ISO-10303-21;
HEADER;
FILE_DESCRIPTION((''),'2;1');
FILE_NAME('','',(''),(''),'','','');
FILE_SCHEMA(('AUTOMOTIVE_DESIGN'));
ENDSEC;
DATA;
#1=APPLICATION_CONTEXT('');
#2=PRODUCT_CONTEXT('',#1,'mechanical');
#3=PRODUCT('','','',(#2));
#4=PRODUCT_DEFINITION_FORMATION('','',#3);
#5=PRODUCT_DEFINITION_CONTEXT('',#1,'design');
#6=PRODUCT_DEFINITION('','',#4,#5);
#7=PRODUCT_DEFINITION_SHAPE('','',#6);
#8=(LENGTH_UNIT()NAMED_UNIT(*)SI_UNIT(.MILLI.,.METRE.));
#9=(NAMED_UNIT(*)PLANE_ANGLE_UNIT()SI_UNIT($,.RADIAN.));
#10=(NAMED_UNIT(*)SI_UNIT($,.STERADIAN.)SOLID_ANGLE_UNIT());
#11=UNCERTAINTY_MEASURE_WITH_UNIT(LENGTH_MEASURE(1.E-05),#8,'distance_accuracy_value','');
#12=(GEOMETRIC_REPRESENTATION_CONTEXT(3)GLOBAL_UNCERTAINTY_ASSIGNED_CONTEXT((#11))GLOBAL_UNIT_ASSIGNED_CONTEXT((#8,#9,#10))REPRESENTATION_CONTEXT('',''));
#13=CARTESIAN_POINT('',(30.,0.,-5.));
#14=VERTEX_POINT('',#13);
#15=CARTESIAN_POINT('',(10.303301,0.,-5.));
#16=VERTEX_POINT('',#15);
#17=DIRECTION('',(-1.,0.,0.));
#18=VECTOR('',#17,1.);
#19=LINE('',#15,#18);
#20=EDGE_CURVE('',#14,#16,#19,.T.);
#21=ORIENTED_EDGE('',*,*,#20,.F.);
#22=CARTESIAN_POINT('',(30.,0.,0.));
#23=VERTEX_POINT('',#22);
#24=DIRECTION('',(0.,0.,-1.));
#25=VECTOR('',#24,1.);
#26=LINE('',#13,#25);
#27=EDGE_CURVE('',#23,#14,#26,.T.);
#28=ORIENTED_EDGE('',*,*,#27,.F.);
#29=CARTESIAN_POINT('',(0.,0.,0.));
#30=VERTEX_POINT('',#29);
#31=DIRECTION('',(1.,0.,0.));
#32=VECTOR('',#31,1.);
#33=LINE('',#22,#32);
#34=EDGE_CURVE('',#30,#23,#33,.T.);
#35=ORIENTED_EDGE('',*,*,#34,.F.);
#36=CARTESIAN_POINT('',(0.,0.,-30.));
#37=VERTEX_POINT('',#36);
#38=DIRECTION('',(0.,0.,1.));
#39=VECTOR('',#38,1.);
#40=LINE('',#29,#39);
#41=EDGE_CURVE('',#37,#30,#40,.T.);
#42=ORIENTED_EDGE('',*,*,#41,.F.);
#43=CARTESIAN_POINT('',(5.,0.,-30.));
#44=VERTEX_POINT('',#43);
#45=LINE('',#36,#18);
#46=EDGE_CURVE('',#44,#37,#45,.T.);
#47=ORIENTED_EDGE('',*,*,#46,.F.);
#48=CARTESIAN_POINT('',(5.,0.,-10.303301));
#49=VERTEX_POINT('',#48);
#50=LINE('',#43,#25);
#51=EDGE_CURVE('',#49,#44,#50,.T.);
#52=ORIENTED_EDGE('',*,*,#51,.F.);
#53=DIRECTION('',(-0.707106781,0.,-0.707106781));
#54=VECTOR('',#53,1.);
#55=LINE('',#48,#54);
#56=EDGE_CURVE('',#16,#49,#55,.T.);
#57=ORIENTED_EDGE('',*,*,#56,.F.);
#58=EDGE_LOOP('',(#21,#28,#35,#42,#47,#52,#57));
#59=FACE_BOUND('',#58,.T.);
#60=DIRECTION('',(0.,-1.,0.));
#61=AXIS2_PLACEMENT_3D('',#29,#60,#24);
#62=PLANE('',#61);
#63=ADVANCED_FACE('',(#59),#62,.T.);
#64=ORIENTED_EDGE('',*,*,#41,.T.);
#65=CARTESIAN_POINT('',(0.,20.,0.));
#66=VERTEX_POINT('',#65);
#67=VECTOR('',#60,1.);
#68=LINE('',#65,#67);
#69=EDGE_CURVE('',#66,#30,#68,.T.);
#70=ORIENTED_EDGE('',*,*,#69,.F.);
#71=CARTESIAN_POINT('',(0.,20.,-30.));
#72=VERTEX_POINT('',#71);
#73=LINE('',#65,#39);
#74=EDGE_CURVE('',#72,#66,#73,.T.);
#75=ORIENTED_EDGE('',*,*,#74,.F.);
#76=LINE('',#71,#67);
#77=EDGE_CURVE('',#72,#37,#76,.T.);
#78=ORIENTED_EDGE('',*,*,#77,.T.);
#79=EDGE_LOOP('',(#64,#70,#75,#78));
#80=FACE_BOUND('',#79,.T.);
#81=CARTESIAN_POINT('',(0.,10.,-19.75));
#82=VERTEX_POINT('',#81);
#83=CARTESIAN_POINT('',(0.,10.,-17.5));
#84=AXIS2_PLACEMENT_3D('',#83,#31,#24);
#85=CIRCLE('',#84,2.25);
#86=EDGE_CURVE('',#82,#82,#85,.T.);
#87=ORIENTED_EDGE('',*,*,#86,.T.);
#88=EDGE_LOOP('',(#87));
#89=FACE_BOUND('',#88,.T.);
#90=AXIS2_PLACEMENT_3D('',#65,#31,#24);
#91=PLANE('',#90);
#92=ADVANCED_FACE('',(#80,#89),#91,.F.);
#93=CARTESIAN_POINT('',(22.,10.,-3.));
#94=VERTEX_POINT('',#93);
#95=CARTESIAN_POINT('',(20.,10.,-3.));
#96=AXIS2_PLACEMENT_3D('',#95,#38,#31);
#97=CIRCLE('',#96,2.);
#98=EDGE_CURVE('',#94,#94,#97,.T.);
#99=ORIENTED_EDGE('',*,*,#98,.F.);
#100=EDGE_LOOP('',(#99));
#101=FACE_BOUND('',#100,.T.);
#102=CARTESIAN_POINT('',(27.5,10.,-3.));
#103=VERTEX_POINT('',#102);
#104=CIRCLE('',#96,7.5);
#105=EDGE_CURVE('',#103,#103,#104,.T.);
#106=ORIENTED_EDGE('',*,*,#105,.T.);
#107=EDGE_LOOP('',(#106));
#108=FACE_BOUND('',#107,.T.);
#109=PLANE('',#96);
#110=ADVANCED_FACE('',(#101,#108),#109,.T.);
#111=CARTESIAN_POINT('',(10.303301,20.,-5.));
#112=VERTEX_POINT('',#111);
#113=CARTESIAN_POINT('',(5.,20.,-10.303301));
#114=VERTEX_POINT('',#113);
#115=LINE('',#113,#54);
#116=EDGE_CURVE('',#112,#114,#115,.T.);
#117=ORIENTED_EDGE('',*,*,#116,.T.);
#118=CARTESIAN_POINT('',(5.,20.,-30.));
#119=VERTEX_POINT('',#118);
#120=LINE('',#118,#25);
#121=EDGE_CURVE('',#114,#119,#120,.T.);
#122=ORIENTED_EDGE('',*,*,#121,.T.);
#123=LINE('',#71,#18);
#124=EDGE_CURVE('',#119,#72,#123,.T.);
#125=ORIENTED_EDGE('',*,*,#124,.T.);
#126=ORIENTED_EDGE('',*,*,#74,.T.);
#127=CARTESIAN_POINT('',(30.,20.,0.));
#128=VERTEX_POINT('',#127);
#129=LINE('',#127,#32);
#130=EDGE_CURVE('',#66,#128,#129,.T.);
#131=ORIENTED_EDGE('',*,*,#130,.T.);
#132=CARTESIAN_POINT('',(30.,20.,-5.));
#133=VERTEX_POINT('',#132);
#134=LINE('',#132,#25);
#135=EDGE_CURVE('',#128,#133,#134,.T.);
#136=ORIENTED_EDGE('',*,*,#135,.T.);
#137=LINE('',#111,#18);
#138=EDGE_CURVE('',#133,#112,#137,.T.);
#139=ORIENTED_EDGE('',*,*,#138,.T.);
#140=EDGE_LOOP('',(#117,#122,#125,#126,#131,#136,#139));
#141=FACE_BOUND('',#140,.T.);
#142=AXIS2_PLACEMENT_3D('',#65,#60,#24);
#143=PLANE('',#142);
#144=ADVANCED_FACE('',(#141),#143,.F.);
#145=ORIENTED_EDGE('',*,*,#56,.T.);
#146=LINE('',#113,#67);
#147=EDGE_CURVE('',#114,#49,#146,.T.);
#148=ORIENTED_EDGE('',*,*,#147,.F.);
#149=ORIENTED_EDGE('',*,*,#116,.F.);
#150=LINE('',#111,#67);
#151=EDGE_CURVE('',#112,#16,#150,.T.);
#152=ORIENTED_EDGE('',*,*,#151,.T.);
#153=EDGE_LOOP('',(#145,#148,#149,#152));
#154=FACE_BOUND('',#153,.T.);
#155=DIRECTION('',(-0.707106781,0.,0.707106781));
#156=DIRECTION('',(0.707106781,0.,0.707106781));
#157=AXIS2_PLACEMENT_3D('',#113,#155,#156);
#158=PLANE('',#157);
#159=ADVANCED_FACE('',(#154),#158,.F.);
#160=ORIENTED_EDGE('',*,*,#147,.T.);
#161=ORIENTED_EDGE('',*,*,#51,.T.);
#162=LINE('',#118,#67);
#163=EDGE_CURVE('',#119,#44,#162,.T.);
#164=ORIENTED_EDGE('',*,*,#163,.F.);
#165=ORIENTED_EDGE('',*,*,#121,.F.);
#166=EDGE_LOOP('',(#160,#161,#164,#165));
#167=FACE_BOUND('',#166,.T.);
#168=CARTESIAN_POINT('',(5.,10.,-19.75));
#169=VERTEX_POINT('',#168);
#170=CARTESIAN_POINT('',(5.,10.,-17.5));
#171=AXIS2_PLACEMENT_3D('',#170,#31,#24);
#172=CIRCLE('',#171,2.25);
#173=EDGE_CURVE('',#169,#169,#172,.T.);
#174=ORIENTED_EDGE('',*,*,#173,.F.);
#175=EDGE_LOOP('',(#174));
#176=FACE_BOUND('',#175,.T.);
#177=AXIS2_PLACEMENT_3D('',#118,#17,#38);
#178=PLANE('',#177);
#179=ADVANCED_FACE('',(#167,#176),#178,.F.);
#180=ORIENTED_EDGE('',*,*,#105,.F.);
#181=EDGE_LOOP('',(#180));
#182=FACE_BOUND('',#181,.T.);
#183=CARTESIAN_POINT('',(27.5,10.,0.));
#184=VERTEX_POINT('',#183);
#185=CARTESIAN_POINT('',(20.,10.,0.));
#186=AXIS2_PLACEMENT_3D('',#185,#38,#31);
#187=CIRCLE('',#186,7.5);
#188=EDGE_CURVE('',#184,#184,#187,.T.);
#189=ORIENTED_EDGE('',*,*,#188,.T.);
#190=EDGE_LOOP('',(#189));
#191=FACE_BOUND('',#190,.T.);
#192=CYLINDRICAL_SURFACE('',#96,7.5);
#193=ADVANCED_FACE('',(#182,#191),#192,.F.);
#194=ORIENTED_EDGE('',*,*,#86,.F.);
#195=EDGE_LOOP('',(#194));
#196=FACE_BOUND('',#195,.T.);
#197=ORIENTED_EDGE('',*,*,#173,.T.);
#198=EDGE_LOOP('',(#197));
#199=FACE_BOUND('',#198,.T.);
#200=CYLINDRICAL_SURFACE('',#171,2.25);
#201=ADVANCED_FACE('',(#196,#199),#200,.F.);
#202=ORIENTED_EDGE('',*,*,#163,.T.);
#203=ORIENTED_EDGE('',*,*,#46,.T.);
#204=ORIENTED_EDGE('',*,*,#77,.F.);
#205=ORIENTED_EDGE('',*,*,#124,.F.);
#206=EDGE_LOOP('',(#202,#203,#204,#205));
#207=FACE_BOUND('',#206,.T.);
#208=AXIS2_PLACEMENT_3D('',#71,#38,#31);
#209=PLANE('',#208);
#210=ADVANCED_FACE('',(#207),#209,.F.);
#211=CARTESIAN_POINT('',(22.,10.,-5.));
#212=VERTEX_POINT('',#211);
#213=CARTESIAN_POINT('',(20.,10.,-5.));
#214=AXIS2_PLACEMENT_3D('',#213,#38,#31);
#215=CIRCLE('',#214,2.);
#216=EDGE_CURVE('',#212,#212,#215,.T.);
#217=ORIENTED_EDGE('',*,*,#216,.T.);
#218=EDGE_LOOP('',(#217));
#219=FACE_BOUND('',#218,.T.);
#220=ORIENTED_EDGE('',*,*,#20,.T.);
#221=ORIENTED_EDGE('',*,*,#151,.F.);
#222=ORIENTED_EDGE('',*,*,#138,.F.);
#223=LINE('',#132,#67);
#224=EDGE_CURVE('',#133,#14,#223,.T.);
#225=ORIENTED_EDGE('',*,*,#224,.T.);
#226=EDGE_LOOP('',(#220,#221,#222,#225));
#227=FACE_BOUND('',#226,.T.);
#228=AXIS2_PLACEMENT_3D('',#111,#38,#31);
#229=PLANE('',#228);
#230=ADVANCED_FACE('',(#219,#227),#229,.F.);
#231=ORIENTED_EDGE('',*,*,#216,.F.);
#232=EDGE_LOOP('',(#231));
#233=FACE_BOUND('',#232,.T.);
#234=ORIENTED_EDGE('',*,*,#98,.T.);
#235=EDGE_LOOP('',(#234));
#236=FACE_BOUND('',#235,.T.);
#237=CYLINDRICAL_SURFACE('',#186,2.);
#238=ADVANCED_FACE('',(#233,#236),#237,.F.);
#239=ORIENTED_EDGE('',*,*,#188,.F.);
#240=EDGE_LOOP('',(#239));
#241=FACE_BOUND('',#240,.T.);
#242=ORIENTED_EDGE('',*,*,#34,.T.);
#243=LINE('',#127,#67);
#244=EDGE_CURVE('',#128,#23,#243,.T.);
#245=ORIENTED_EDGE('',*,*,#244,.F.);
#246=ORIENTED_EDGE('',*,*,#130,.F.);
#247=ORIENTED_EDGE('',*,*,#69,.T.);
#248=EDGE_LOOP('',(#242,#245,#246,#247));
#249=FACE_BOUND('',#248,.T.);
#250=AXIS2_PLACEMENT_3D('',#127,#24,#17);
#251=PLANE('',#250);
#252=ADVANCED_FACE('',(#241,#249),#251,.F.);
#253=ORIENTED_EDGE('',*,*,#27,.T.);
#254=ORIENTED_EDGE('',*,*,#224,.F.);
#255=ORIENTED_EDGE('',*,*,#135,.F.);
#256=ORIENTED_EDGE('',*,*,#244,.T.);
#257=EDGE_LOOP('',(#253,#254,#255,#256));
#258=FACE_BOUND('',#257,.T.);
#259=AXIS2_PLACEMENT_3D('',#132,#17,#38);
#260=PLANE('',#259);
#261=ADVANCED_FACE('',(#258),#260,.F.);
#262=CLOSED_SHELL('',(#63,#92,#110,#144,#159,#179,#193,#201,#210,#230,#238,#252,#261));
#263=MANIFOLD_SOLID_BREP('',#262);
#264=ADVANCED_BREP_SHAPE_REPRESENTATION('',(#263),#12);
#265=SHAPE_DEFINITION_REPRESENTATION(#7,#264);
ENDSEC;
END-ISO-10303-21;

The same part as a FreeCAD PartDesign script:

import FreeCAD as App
import Part
import Sketcher
from FreeCAD import Vector

doc = App.newDocument("Part")
body = doc.addObject("PartDesign::Body", "Body")

sketch1 = body.newObject("Sketcher::SketchObject", "Sketch")
sketch1.AttachmentSupport = (doc.getObject("XZ_Plane"), [""])
sketch1.MapMode = "FlatFace"
sketch1.addGeometry(Part.LineSegment(Vector(5, -10.303301, 0), Vector(5, -30, 0)), False)
sketch1.addGeometry(Part.LineSegment(Vector(5, -30, 0), Vector(0, -30, 0)), False)
sketch1.addGeometry(Part.LineSegment(Vector(0, -30, 0), Vector(0, 0, 0)), False)
sketch1.addGeometry(Part.LineSegment(Vector(0, 0, 0), Vector(30, 0, 0)), False)
sketch1.addGeometry(Part.LineSegment(Vector(30, 0, 0), Vector(30, -5, 0)), False)
sketch1.addGeometry(Part.LineSegment(Vector(30, -5, 0), Vector(10.303301, -5, 0)), False)
sketch1.addGeometry(Part.LineSegment(Vector(10.303301, -5, 0), Vector(5, -10.303301, 0)), False)
sketch1.addConstraint(Sketcher.Constraint("Coincident", 0, 2, 1, 1))
sketch1.addConstraint(Sketcher.Constraint("Coincident", 1, 2, 2, 1))
sketch1.addConstraint(Sketcher.Constraint("Coincident", 2, 2, 3, 1))
sketch1.addConstraint(Sketcher.Constraint("Coincident", 3, 2, 4, 1))
sketch1.addConstraint(Sketcher.Constraint("Coincident", 4, 2, 5, 1))
sketch1.addConstraint(Sketcher.Constraint("Coincident", 5, 2, 6, 1))
sketch1.addConstraint(Sketcher.Constraint("Coincident", 6, 2, 0, 1))
sketch1.addConstraint(Sketcher.Constraint("Vertical", 0))
sketch1.addConstraint(Sketcher.Constraint("Horizontal", 1))
sketch1.addConstraint(Sketcher.Constraint("Vertical", 2))
sketch1.addConstraint(Sketcher.Constraint("Horizontal", 3))
sketch1.addConstraint(Sketcher.Constraint("Vertical", 4))
sketch1.addConstraint(Sketcher.Constraint("Horizontal", 5))
sketch1.addConstraint(Sketcher.Constraint("Coincident", 2, 2, -1, 1))
sketch1.addConstraint(Sketcher.Constraint("Equal", 5, 0))
sketch1.addConstraint(Sketcher.Constraint("Equal", 3, 2))
sketch1.addConstraint(Sketcher.Constraint("Equal", 1, 4))
sketch1.addConstraint(Sketcher.Constraint("DistanceX", 1, 2, 1, 1, 5.0))
sketch1.addConstraint(Sketcher.Constraint("DistanceX", 3, 1, 3, 2, 30.0))
sketch1.addConstraint(Sketcher.Constraint("Distance", 6, 7.5))
pad1 = body.newObject("PartDesign::Pad", "Pad")
pad1.Profile = sketch1
pad1.Length = 20
pad1.Reversed = True

sketch2 = body.newObject("Sketcher::SketchObject", "Sketch001")
sketch2.AttachmentSupport = (doc.getObject("YZ_Plane"), [""])
sketch2.MapMode = "FlatFace"
sketch2.AttachmentOffset = App.Placement(Vector(0, 0, 5), App.Rotation())
sketch2.addGeometry(Part.Circle(Vector(10, -17.5, 0), Vector(0, 0, 1), 2.25), False)
sketch2.addConstraint(Sketcher.Constraint("Diameter", 0, 4.5))
sketch2.addConstraint(Sketcher.Constraint("DistanceX", -1, 1, 0, 3, 10.0))
sketch2.addConstraint(Sketcher.Constraint("DistanceY", 0, 3, -1, 1, 17.5))
doc.recompute()
hole = body.newObject("PartDesign::Hole", "Hole")
hole.Profile = sketch2
hole.ThreadType = "None"
hole.Diameter = 4.5
hole.DepthType = "Dimension"
hole.Depth = 15
hole.DrillPoint = "Angled"
hole.DrillPointAngle = 118

sketch3 = body.newObject("Sketcher::SketchObject", "Sketch002")
sketch3.AttachmentSupport = (doc.getObject("XY_Plane"), [""])
sketch3.MapMode = "FlatFace"
sketch3.addGeometry(Part.Circle(Vector(20, 10, 0), Vector(0, 0, 1), 7.5), False)
sketch3.addConstraint(Sketcher.Constraint("Diameter", 0, 15.0))
sketch3.addConstraint(Sketcher.Constraint("DistanceX", -1, 1, 0, 3, 20.0))
sketch3.addConstraint(Sketcher.Constraint("DistanceY", -1, 1, 0, 3, 10.0))
pocket1 = body.newObject("PartDesign::Pocket", "Pocket")
pocket1.Profile = sketch3
pocket1.Length = 3

sketch4 = body.newObject("Sketcher::SketchObject", "Sketch003")
sketch4.AttachmentSupport = (doc.getObject("XY_Plane"), [""])
sketch4.MapMode = "FlatFace"
sketch4.addGeometry(Part.Circle(Vector(20, 10, 0), Vector(0, 0, 1), 2), False)
sketch4.addConstraint(Sketcher.Constraint("Diameter", 0, 4.0))
sketch4.addConstraint(Sketcher.Constraint("DistanceX", -1, 1, 0, 3, 20.0))
sketch4.addConstraint(Sketcher.Constraint("DistanceY", -1, 1, 0, 3, 10.0))
doc.recompute()
hole2 = body.newObject("PartDesign::Hole", "Hole001")
hole2.Profile = sketch4
hole2.ThreadType = "None"
hole2.Diameter = 4
hole2.DepthType = "Dimension"
hole2.Depth = 9
hole2.DrillPoint = "Angled"
hole2.DrillPointAngle = 118

doc.recompute()
